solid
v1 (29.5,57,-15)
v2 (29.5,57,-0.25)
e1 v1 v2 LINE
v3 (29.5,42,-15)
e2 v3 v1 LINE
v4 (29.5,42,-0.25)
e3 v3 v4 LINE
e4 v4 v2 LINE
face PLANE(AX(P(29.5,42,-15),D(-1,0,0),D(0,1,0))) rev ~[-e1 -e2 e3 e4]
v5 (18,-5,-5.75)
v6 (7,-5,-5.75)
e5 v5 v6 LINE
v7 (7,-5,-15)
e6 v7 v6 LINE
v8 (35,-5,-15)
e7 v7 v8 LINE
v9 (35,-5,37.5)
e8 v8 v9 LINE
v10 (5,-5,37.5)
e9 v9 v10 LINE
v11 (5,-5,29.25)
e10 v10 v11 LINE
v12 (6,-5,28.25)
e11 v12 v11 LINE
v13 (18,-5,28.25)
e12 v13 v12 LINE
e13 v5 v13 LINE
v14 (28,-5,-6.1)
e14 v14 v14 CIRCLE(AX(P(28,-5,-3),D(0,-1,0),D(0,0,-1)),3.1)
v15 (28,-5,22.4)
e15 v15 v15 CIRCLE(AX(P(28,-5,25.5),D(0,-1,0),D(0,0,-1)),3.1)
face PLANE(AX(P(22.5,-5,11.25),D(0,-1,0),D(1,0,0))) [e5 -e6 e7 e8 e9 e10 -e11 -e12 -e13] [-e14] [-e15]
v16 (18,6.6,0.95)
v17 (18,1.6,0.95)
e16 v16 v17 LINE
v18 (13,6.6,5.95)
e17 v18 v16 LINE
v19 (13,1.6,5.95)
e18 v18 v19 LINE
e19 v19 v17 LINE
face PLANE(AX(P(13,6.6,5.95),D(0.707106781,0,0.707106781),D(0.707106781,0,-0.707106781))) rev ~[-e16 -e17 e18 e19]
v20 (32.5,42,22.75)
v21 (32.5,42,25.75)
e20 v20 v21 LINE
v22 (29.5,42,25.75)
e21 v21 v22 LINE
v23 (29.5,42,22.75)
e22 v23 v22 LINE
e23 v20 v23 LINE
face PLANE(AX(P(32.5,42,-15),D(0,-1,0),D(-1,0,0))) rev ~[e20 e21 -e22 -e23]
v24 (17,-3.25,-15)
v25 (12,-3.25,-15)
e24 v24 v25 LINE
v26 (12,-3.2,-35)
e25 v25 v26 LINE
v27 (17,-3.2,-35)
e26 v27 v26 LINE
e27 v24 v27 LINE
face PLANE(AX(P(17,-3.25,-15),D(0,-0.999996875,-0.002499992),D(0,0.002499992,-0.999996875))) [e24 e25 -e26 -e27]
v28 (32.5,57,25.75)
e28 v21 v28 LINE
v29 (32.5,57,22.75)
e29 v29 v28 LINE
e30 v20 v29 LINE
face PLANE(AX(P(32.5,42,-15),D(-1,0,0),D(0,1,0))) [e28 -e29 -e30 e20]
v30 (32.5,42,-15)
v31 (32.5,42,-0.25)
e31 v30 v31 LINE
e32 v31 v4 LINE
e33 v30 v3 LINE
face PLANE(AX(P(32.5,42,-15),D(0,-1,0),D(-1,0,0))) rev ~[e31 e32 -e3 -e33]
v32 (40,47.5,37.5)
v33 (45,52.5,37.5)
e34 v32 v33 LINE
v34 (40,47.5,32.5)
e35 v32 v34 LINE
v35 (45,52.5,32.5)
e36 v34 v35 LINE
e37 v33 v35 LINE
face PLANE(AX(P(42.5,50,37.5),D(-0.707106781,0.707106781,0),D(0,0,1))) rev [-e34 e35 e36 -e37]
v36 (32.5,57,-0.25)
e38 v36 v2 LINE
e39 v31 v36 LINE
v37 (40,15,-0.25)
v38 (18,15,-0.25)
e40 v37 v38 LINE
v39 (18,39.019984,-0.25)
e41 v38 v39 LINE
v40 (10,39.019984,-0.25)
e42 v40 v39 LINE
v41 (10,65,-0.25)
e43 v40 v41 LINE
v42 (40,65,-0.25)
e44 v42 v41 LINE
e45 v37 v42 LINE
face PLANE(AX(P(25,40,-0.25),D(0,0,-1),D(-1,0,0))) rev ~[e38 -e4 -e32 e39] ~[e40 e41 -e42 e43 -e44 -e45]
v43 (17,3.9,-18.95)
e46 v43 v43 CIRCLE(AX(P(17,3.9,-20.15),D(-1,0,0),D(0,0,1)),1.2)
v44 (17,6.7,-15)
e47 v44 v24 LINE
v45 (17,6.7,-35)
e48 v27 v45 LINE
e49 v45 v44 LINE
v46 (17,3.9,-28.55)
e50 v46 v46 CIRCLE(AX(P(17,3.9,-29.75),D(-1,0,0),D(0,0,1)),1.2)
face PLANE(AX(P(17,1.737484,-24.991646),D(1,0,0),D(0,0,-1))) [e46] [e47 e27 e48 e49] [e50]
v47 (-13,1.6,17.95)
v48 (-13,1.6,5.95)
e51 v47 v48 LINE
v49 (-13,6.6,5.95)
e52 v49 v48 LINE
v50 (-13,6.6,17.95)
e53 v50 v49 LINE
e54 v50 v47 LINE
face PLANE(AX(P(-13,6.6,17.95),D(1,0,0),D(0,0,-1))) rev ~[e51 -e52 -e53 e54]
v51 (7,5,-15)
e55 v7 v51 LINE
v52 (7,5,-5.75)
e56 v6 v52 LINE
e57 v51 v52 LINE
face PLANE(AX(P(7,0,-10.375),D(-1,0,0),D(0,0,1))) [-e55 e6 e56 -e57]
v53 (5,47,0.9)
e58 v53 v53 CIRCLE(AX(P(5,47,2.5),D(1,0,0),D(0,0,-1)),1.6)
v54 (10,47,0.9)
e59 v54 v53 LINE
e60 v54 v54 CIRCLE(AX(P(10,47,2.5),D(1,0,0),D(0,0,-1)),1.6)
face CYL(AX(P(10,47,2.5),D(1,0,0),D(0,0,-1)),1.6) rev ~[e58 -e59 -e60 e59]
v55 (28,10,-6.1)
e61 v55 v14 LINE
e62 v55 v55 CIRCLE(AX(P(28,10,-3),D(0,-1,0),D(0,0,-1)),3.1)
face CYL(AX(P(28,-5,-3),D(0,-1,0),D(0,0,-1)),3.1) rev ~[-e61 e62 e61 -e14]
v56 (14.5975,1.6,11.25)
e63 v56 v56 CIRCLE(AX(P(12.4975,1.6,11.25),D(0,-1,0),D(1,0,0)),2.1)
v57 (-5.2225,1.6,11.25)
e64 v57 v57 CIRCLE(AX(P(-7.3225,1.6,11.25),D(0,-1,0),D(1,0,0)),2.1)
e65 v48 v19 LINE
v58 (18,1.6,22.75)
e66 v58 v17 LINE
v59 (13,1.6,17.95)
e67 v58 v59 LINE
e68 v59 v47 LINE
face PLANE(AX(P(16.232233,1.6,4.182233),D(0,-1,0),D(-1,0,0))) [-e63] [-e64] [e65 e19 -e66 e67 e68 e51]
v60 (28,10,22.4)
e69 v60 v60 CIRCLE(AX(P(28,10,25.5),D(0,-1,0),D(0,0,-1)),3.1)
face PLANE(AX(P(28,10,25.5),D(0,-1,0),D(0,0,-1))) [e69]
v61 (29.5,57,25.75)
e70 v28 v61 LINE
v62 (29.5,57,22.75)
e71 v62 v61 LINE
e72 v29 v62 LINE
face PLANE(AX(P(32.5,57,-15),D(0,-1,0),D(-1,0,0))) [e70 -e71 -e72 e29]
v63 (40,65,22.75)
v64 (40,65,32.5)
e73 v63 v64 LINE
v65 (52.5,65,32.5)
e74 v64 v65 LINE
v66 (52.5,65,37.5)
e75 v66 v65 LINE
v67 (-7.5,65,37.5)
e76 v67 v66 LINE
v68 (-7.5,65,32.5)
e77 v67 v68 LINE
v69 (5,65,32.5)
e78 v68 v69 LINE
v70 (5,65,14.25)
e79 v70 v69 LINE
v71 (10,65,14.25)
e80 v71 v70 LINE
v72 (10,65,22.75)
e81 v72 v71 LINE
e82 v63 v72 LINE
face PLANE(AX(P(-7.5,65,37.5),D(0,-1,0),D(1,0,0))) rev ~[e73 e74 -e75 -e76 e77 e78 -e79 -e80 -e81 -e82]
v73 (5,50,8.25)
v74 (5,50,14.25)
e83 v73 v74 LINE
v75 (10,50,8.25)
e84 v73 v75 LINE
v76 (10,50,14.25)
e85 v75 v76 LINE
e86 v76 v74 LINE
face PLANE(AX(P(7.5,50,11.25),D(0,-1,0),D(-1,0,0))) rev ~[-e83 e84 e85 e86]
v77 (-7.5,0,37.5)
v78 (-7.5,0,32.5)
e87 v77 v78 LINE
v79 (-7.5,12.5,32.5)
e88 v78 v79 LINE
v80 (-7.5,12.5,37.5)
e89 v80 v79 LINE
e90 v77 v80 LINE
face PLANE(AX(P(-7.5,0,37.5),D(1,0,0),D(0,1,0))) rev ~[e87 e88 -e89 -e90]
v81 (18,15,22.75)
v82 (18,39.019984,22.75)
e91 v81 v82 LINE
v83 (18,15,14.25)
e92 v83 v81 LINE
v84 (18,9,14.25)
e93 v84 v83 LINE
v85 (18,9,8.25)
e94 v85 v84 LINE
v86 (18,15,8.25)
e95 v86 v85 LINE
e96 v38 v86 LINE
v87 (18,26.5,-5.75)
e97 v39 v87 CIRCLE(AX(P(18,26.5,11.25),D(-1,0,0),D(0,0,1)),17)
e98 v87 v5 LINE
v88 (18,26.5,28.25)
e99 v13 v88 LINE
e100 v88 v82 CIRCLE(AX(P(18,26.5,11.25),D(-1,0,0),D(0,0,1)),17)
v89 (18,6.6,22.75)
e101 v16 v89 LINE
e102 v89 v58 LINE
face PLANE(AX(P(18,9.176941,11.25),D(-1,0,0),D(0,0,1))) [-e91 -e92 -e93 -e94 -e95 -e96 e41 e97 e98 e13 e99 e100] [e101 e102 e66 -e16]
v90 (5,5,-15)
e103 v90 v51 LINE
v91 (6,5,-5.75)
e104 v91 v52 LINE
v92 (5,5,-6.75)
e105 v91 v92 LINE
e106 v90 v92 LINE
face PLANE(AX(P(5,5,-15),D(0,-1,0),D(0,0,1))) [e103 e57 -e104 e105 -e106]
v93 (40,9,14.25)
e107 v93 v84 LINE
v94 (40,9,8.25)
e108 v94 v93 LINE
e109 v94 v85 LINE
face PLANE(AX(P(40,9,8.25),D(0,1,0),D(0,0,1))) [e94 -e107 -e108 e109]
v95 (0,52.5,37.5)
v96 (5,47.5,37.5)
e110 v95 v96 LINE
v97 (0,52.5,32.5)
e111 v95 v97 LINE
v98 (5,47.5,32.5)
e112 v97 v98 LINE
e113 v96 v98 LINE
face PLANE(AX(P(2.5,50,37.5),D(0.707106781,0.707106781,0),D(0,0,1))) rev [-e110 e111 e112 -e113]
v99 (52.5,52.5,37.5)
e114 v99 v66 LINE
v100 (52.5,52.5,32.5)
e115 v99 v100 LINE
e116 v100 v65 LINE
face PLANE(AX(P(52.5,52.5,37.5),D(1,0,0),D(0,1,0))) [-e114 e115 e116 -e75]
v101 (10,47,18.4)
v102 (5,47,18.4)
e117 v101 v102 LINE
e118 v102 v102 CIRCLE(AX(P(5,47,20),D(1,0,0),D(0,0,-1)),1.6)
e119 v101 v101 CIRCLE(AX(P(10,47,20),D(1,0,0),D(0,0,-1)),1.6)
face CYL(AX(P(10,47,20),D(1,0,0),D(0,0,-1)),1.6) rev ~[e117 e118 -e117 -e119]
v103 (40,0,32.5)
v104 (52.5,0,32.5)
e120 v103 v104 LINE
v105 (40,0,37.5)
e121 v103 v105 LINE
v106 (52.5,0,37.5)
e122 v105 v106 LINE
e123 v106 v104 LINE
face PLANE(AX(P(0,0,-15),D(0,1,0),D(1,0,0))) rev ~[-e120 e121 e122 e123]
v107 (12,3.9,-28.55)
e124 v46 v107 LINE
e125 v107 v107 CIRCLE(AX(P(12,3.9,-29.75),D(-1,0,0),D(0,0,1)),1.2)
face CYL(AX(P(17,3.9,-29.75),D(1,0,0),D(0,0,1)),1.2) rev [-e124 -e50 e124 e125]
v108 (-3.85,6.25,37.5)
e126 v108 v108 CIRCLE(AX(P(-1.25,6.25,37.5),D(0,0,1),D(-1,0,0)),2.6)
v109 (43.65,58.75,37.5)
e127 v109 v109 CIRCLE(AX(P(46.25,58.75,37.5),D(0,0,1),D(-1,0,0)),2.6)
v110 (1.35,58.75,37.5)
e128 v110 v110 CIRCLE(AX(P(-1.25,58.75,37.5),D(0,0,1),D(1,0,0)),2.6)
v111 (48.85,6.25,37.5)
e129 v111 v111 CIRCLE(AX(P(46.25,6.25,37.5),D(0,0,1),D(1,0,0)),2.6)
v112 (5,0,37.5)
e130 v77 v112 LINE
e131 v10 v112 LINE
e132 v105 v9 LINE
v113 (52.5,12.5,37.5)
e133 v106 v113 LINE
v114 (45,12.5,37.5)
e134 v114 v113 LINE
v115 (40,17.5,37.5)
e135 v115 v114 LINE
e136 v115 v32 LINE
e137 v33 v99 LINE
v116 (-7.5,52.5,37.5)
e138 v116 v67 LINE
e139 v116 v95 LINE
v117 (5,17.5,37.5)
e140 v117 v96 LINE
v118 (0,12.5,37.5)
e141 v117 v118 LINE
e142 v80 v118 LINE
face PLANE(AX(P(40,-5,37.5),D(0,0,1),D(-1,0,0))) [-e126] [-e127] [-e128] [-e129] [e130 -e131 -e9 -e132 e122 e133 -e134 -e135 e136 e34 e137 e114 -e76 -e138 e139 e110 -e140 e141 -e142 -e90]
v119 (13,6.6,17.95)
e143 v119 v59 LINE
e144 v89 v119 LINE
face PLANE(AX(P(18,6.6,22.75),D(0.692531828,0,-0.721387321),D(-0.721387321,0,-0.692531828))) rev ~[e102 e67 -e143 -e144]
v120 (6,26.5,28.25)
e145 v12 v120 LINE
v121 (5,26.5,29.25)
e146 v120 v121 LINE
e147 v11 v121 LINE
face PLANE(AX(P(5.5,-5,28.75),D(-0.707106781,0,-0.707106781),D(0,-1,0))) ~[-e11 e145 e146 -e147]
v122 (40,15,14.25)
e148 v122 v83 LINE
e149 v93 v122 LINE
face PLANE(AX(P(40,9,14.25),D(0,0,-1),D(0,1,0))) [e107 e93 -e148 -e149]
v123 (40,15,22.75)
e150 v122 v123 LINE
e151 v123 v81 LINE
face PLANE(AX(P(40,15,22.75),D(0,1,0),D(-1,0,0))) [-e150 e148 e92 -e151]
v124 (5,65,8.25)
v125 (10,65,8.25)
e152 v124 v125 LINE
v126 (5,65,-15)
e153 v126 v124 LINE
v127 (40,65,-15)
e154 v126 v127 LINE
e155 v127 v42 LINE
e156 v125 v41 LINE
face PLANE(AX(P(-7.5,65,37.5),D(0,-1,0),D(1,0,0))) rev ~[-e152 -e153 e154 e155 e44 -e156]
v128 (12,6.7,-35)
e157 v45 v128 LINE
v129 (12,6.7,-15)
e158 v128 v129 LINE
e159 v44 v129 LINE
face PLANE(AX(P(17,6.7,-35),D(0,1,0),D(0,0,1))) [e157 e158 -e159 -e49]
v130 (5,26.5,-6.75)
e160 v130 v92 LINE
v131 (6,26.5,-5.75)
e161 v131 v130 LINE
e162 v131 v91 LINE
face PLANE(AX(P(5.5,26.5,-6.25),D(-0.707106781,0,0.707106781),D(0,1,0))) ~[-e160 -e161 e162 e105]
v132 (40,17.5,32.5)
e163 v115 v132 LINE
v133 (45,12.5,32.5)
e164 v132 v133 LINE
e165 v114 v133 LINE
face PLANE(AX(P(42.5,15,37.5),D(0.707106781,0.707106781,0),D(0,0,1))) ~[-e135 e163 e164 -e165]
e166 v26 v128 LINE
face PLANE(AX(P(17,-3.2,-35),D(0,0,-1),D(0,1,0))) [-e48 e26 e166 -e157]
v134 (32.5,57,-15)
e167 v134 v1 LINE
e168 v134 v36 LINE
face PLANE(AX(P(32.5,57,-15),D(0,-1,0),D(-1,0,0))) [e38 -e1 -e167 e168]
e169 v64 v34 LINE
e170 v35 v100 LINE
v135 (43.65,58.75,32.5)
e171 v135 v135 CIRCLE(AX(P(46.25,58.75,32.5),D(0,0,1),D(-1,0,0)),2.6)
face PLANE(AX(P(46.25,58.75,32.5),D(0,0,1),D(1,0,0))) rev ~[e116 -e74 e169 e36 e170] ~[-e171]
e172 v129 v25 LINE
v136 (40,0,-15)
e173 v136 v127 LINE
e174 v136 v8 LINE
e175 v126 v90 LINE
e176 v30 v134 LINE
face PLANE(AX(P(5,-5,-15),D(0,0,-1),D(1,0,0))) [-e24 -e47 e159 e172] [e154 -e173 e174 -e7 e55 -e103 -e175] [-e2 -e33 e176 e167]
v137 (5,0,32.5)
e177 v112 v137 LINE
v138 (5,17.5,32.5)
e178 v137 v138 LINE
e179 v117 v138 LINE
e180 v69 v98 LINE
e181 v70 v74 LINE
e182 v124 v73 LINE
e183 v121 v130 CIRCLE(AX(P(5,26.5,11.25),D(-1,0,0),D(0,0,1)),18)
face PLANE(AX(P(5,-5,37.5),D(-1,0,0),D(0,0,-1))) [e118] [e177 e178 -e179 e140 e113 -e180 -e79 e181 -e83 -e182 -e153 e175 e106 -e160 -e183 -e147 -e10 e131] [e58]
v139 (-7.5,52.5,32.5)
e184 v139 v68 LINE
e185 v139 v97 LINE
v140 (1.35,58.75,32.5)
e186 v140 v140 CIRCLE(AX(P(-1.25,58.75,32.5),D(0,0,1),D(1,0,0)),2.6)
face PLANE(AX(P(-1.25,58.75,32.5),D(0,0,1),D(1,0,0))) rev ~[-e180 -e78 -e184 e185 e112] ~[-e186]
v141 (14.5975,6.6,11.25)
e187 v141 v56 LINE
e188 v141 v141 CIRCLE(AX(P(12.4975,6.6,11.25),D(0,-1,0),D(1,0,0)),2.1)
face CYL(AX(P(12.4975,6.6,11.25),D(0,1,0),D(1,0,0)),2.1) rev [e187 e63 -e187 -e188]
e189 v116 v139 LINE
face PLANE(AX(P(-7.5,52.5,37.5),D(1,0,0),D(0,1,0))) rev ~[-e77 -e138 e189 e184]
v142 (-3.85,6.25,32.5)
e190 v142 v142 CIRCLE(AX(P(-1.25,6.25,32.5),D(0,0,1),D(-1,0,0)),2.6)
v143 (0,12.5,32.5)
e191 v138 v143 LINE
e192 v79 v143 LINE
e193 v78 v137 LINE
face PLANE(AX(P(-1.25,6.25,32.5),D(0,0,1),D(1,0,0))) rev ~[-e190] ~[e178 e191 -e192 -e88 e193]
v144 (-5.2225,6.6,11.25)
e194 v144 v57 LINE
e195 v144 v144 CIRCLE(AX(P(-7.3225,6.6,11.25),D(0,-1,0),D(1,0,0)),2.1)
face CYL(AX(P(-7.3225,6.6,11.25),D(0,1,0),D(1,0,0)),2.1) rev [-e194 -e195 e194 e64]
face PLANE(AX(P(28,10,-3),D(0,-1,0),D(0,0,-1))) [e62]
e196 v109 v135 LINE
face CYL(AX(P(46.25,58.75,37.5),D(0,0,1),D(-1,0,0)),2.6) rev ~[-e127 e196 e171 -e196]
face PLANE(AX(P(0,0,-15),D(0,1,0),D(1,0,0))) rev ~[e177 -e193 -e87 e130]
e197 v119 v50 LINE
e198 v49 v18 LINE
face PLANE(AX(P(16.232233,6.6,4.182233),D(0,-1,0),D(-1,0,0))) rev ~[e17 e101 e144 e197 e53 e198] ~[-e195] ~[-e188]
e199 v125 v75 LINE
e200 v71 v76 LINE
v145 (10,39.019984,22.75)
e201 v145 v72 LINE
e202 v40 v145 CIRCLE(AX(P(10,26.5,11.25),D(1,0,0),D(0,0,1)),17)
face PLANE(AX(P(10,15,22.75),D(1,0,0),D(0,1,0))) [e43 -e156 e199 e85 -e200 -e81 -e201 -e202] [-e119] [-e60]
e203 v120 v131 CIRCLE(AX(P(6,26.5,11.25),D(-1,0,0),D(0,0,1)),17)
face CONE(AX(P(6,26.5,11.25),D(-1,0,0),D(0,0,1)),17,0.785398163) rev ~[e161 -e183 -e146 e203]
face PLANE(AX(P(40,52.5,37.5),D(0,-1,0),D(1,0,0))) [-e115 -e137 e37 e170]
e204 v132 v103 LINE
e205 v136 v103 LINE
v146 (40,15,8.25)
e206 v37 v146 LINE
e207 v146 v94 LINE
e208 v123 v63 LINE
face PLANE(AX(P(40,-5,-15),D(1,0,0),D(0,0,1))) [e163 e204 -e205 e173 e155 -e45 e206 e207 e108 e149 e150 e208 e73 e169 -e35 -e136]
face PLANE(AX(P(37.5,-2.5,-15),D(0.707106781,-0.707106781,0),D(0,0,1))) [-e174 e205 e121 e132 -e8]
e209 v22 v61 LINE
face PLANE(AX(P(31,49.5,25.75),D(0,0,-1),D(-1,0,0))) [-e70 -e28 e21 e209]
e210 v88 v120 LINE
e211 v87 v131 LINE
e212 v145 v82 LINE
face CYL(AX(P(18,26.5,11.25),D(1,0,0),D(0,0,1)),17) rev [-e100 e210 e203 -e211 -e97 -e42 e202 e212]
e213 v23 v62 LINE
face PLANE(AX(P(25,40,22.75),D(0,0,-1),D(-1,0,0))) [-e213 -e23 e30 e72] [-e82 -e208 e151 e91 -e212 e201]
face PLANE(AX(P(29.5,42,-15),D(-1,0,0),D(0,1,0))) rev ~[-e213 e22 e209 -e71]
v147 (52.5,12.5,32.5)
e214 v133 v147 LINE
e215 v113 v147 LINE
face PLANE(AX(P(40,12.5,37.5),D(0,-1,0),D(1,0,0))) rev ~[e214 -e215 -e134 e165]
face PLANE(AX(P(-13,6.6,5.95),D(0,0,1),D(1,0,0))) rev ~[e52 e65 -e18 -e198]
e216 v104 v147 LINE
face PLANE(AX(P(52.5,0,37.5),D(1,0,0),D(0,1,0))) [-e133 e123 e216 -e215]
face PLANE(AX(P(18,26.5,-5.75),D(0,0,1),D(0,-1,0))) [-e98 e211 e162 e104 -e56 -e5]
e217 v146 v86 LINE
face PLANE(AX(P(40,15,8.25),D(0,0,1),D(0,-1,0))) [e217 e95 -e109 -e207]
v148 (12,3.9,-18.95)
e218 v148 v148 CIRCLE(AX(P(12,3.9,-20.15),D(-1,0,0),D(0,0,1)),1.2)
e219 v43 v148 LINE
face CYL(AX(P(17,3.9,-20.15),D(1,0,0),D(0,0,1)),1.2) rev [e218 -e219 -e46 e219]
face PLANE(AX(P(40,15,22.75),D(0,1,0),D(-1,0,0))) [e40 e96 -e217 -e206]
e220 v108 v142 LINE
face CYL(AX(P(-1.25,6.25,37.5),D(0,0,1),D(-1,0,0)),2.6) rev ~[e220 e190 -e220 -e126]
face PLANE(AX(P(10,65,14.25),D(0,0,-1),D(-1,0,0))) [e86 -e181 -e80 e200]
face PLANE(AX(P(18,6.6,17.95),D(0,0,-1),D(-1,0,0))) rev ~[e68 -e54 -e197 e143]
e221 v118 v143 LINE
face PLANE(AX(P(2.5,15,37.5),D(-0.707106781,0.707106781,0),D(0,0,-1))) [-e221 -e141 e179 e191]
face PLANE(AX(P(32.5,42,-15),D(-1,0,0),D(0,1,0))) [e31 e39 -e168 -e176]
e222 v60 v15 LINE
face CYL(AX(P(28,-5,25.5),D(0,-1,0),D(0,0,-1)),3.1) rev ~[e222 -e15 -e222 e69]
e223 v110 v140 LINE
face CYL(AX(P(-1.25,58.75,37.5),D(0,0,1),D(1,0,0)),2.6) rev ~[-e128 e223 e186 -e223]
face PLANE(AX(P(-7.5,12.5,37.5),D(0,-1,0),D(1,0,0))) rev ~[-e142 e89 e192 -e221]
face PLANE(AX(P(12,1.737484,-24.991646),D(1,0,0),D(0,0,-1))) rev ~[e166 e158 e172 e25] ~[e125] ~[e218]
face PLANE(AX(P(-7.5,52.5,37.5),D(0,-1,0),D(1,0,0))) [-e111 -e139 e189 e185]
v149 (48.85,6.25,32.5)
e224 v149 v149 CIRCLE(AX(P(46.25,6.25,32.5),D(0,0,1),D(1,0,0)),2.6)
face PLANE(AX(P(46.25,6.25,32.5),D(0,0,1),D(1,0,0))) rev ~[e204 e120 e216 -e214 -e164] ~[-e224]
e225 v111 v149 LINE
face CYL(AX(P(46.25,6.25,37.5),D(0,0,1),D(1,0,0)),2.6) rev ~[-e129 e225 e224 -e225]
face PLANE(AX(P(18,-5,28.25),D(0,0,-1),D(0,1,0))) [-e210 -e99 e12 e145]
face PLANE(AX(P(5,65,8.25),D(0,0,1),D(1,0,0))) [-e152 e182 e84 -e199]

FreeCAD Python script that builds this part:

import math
import FreeCAD as App
import Part
import Sketcher
from FreeCAD import Vector
Q = App.Units.Quantity


def edges_at(feature, points):
    """Names of the edges that pass closest to the given points."""
    edges = feature.Shape.Edges
    near = lambda p: min(range(len(edges)), key=lambda i: edges[i].distToShape(Part.Vertex(*p))[0])
    return sorted({f"Edge{near(p) + 1}" for p in points})


def add_polygon(sketch, points):
    """Adds a closed chain of lines whose ends are joined by coincident constraints."""
    first, n = sketch.GeometryCount, len(points)
    for a, b in zip(points, points[1:] + points[:1]):
        sketch.addGeometry(Part.LineSegment(App.Vector(*a, 0), App.Vector(*b, 0)), False)
    for i in range(n):
        sketch.addConstraint(Sketcher.Constraint("Coincident", first + i, 2, first + (i + 1) % n, 1))

doc = App.newDocument("Part")
body = doc.addObject("PartDesign::Body", "Body")

# Sketch on XY plane
sketch1 = doc.addObject("Sketcher::SketchObject", "Sketch")
body.addObject(sketch1)
sketch1.AttachmentSupport = (doc.XY_Plane, [""])
sketch1.MapMode = "FlatFace"
add_polygon(sketch1, [(0, 65), (0, 0), (40, 0), (40, 65)])  # lines 0-3
sketch1.addConstraint([
    Sketcher.Constraint("Vertical", 0),
    Sketcher.Constraint("Horizontal", 1),
    Sketcher.Constraint("Vertical", 2),
    Sketcher.Constraint("Horizontal", 3),
    Sketcher.Constraint("Coincident", 0, 2, -1, 1),
    Sketcher.Constraint("DistanceX", 1, 1, 1, 2, Q("40 mm")),
    Sketcher.Constraint("DistanceY", 0, 2, 0, 1, Q("65 mm")),
])
pad1 = doc.addObject("PartDesign::Pad", "Pad")
body.addObject(pad1)
pad1.Profile = sketch1
pad1.Type = "TwoLengths"
pad1.Length = 42.5
pad1.Length2 = 15

# Sketch on YZ plane
sketch2 = doc.addObject("Sketcher::SketchObject", "Sketch001")
body.addObject(sketch2)
sketch2.AttachmentSupport = (doc.YZ_Plane, [""])
sketch2.MapMode = "FlatFace"
sketch2.AttachmentOffset = App.Placement(Vector(0, 0, 40), App.Rotation())
add_polygon(sketch2, [(65, 22), (15, 22), (15, 0), (65, 0)])  # lines 0-3
sketch2.addConstraint([
    Sketcher.Constraint("Horizontal", 0),
    Sketcher.Constraint("Vertical", 1),
    Sketcher.Constraint("Horizontal", 2),
    Sketcher.Constraint("Vertical", 3),
    Sketcher.Constraint("PointOnObject", 1, 2, -1),
    Sketcher.Constraint("DistanceX", 0, 2, 0, 1, Q("50 mm")),
    Sketcher.Constraint("DistanceY", 1, 2, 1, 1, Q("22.5 mm")),
    Sketcher.Constraint("DistanceX", -1, 1, 0, 2, Q("15 mm")),
])
pocket1 = doc.addObject("PartDesign::Pocket", "Pocket")
body.addObject(pocket1)
pocket1.Profile = sketch2
pocket1.Length = 30

# Sketch on YZ plane
sketch3 = doc.addObject("Sketcher::SketchObject", "Sketch002")
body.addObject(sketch3)
sketch3.AttachmentSupport = (doc.YZ_Plane, [""])
sketch3.MapMode = "FlatFace"
sketch3.AttachmentOffset = App.Placement(Vector(0, 0, 10), App.Rotation())
sketch3.addGeometry(Part.Circle(Vector(26.5, 11.2, 0), Vector(0, 0, 1), 4.5), False)
sketch3.addConstraint([
    Sketcher.Constraint("Diameter", 0, Q("9 mm")),
    Sketcher.Constraint("DistanceX", -1, 1, 0, 3, Q("26.5 mm")),
    Sketcher.Constraint("DistanceY", -1, 1, 0, 3, Q("11.25 mm")),
])
pocket2 = doc.addObject("PartDesign::Pocket", "Pocket001")
body.addObject(pocket2)
pocket2.Profile = sketch3
pocket2.Length = 10

# Sketch on XY plane
sketch4 = doc.addObject("Sketcher::SketchObject", "Sketch003")
body.addObject(sketch4)
sketch4.AttachmentSupport = (doc.XY_Plane, [""])
sketch4.MapMode = "FlatFace"
sketch4.AttachmentOffset = App.Placement(Vector(0, 0, 42.5), App.Rotation())
add_polygon(sketch4, [(0, 65), (0, 0), (40, 0), (40, 65)])  # lines 0-3
sketch4.addConstraint([
    Sketcher.Constraint("Vertical", 0),
    Sketcher.Constraint("Horizontal", 1),
    Sketcher.Constraint("Vertical", 2),
    Sketcher.Constraint("Horizontal", 3),
    Sketcher.Constraint("Coincident", 0, 2, -1, 1),
    Sketcher.Constraint("DistanceX", 1, 1, 1, 2, Q("40 mm")),
    Sketcher.Constraint("DistanceY", 0, 2, 0, 1, Q("65 mm")),
])
pocket3 = doc.addObject("PartDesign::Pocket", "Pocket002")
body.addObject(pocket3)
pocket3.Profile = sketch4
pocket3.Length = 5

# Sketch on XZ plane
sketch5 = doc.addObject("Sketcher::SketchObject", "Sketch004")
body.addObject(sketch5)
sketch5.AttachmentSupport = (doc.XZ_Plane, [""])
sketch5.MapMode = "FlatFace"
sketch5.addGeometry([
    Part.Circle(Vector(28, 25.5, 0), Vector(0, 0, 1), 3.1),
    Part.Circle(Vector(28, -3, 0), Vector(0, 0, 1), 3.1),
], False)
sketch5.addConstraint([
    Sketcher.Constraint("Equal", 0, 1),
    Sketcher.Constraint("Vertical", 0, 3, 1, 3),
    Sketcher.Constraint("Diameter", 0, Q("6.2 mm")),
    Sketcher.Constraint("DistanceX", -1, 1, 0, 3, Q("28 mm")),
    Sketcher.Constraint("DistanceY", 1, 3, -1, 1, Q("3 mm")),
    Sketcher.Constraint("DistanceY", -1, 1, 0, 3, Q("25.5 mm")),
])
pocket4 = doc.addObject("PartDesign::Pocket", "Pocket003")
body.addObject(pocket4)
pocket4.Profile = sketch5
pocket4.Length = 10

# Sketch on YZ plane
sketch6 = doc.addObject("Sketcher::SketchObject", "Sketch005")
body.addObject(sketch6)
sketch6.AttachmentSupport = (doc.YZ_Plane, [""])
sketch6.MapMode = "FlatFace"
add_polygon(sketch6, [(65, -15), (0, -15), (0, 38), (65, 38)])  # lines 0-3
sketch6.addConstraint([
    Sketcher.Constraint("Horizontal", 0),
    Sketcher.Constraint("Vertical", 1),
    Sketcher.Constraint("Horizontal", 2),
    Sketcher.Constraint("Vertical", 3),
    Sketcher.Constraint("PointOnObject", 0, 2, -2),
    Sketcher.Constraint("DistanceX", 0, 2, 0, 1, Q("65 mm")),
    Sketcher.Constraint("DistanceY", 1, 1, 1, 2, Q("52.5 mm")),
    Sketcher.Constraint("DistanceY", 0, 2, -1, 1, Q("15 mm")),
])
pocket5 = doc.addObject("PartDesign::Pocket", "Pocket004")
body.addObject(pocket5)
pocket5.Profile = sketch6
pocket5.Length = 5
pocket5.Reversed = True

# Sketch on XY plane
sketch7 = doc.addObject("Sketcher::SketchObject", "Sketch006")
body.addObject(sketch7)
sketch7.AttachmentSupport = (doc.XY_Plane, [""])
sketch7.MapMode = "FlatFace"
sketch7.AttachmentOffset = App.Placement(Vector(0, 0, 37.5), App.Rotation())
add_polygon(sketch7, [(-7.5, 65), (-7.5, 52.5), (5, 52.5), (5, 65)])  # lines 0-3
sketch7.addGeometry(Part.Circle(Vector(-1.2, 58.8, 0), Vector(0, 0, 1), 2.6), False)  # 4
add_polygon(sketch7, [(40, 65), (40, 52.5), (52.5, 52.5), (52.5, 65)])  # lines 5-8
sketch7.addGeometry(Part.Circle(Vector(46.2, 58.8, 0), Vector(0, 0, 1), 2.6), False)  # 9
add_polygon(sketch7, [(40, 12.5), (40, 0), (52.5, 0), (52.5, 12.5)])  # lines 10-13
sketch7.addGeometry(Part.Circle(Vector(46.2, 6.2, 0), Vector(0, 0, 1), 2.6), False)  # 14
add_polygon(sketch7, [(-7.5, 12.5), (-7.5, 0), (5, 0), (5, 12.5)])  # lines 15-18
sketch7.addGeometry(Part.Circle(Vector(-1.2, 6.2, 0), Vector(0, 0, 1), 2.6), False)  # 19
sketch7.addConstraint([
    Sketcher.Constraint("Vertical", 0),
    Sketcher.Constraint("Horizontal", 1),
    Sketcher.Constraint("Vertical", 2),
    Sketcher.Constraint("Horizontal", 3),
    Sketcher.Constraint("Vertical", 5),
    Sketcher.Constraint("Horizontal", 6),
    Sketcher.Constraint("Vertical", 7),
    Sketcher.Constraint("Horizontal", 8),
    Sketcher.Constraint("Vertical", 10),
    Sketcher.Constraint("Horizontal", 11),
    Sketcher.Constraint("Vertical", 12),
    Sketcher.Constraint("Horizontal", 13),
    Sketcher.Constraint("Vertical", 15),
    Sketcher.Constraint("Horizontal", 16),
    Sketcher.Constraint("Vertical", 17),
    Sketcher.Constraint("Horizontal", 18),
    Sketcher.Constraint("Equal", 4, 9),
    Sketcher.Constraint("Equal", 9, 14),
    Sketcher.Constraint("Equal", 14, 19),
    Sketcher.Constraint("PointOnObject", 10, 2, -1),
    Sketcher.Constraint("PointOnObject", 15, 2, -1),
    Sketcher.Constraint("Horizontal", 4, 3, 9, 3),
    Sketcher.Constraint("Horizontal", 14, 3, 19, 3),
    Sketcher.Constraint("Horizontal", 1, 2, 5, 2),
    Sketcher.Constraint("Horizontal", 3, 2, 7, 2),
    Sketcher.Constraint("Horizontal", 13, 2, 17, 2),
    Sketcher.Constraint("Vertical", 9, 3, 14, 3),
    Sketcher.Constraint("Vertical", 4, 3, 19, 3),
    Sketcher.Constraint("Vertical", 8, 2, 10, 2),
    Sketcher.Constraint("Vertical", 7, 2, 11, 2),
    Sketcher.Constraint("Vertical", 3, 2, 15, 2),
    Sketcher.Constraint("Vertical", 2, 2, 16, 2),
    Sketcher.Constraint("Equal", 3, 6),
    Sketcher.Constraint("Equal", 18, 0),
    Sketcher.Constraint("Equal", 7, 10),
    Sketcher.Constraint("Diameter", 4, Q("5.2 mm")),
    Sketcher.Constraint("DistanceX", 1, 1, 1, 2, Q("12.5 mm")),
    Sketcher.Constraint("DistanceX", -1, 1, 1, 2, Q("5 mm")),
    Sketcher.Constraint("DistanceY", -1, 1, 2, 2, Q("65 mm")),
    Sketcher.Constraint("DistanceX", -1, 1, 5, 2, Q("40 mm")),
    Sketcher.Constraint("DistanceX", 4, 3, 9, 3, Q("47.5 mm")),
    Sketcher.Constraint("DistanceY", 14, 3, 9, 3, Q("52.5 mm")),
    Sketcher.Constraint("DistanceX", 4, 3, -1, 1, Q("1.25 mm")),
    Sketcher.Constraint("DistanceY", -1, 1, 4, 3, Q("58.75 mm")),
])
pad2 = doc.addObject("PartDesign::Pad", "Pad001")
body.addObject(pad2)
pad2.Profile = sketch7
pad2.Length = 5
pad2.Reversed = True

# Sketch on XZ plane
sketch8 = doc.addObject("Sketcher::SketchObject", "Sketch007")
body.addObject(sketch8)
sketch8.AttachmentSupport = (doc.XZ_Plane, [""])
sketch8.MapMode = "FlatFace"
sketch8.AttachmentOffset = App.Placement(Vector(0, 0, 5), App.Rotation())
add_polygon(sketch8, [(40, 37.5), (5, 37.5), (5, -15), (40, -15)])  # lines 0-3
sketch8.addGeometry(Part.Circle(Vector(28, -3, 0), Vector(0, 0, 1), 3.1), False)  # 4
sketch8.addGeometry(Part.Circle(Vector(28, 25.5, 0), Vector(0, 0, 1), 3.1), False)  # 5
sketch8.addConstraint([
    Sketcher.Constraint("Horizontal", 0),
    Sketcher.Constraint("Vertical", 1),
    Sketcher.Constraint("Horizontal", 2),
    Sketcher.Constraint("Vertical", 3),
    Sketcher.Constraint("Equal", 4, 5),
    Sketcher.Constraint("Vertical", 4, 3, 5, 3),
    Sketcher.Constraint("Diameter", 4, Q("6.2 mm")),
    Sketcher.Constraint("DistanceX", 0, 2, 0, 1, Q("35 mm")),
    Sketcher.Constraint("DistanceY", 1, 2, 1, 1, Q("52.5 mm")),
    Sketcher.Constraint("DistanceX", -1, 1, 4, 3, Q("28 mm")),
    Sketcher.Constraint("DistanceY", 4, 3, -1, 1, Q("3 mm")),
    Sketcher.Constraint("DistanceX", -1, 1, 0, 2, Q("5 mm")),
    Sketcher.Constraint("DistanceY", 1, 2, -1, 1, Q("15 mm")),
    Sketcher.Constraint("DistanceY", 5, 3, 0, 2, Q("12 mm")),
])
pad3 = doc.addObject("PartDesign::Pad", "Pad002")
body.addObject(pad3)
pad3.Profile = sketch8
pad3.Length = 5
pad3.Reversed = True

# Sketch on YZ plane
sketch9 = doc.addObject("Sketcher::SketchObject", "Sketch008")
body.addObject(sketch9)
sketch9.AttachmentSupport = (doc.YZ_Plane, [""])
sketch9.MapMode = "FlatFace"
sketch9.AttachmentOffset = App.Placement(Vector(0, 0, 10), App.Rotation())
sketch9.addGeometry([
    Part.Circle(Vector(47, 2.5, 0), Vector(0, 0, 1), 1.6),
    Part.Circle(Vector(47, 20, 0), Vector(0, 0, 1), 1.6),
], False)
sketch9.addConstraint([
    Sketcher.Constraint("Equal", 0, 1),
    Sketcher.Constraint("Vertical", 0, 3, 1, 3),
    Sketcher.Constraint("Diameter", 0, Q("3.2 mm")),
    Sketcher.Constraint("DistanceX", -1, 1, 0, 3, Q("47 mm")),
    Sketcher.Constraint("DistanceY", -1, 1, 1, 3, Q("20 mm")),
    Sketcher.Constraint("DistanceY", -1, 1, 0, 3, Q("2.5 mm")),
])
pocket6 = doc.addObject("PartDesign::Pocket", "Pocket005")
body.addObject(pocket6)
pocket6.Profile = sketch9
pocket6.Type = "ThroughAll"

# Sketch on XY plane
sketch10 = doc.addObject("Sketcher::SketchObject", "Sketch009")
body.addObject(sketch10)
sketch10.AttachmentSupport = (doc.XY_Plane, [""])
sketch10.MapMode = "FlatFace"
sketch10.AttachmentOffset = App.Placement(Vector(0, 0, 11.25), App.Rotation())
add_polygon(sketch10, [(40, 65), (40, 15), (10, 15), (10, 65)])  # lines 0-3
sketch10.addConstraint([
    Sketcher.Constraint("Vertical", 0),
    Sketcher.Constraint("Horizontal", 1),
    Sketcher.Constraint("Vertical", 2),
    Sketcher.Constraint("Horizontal", 3),
    Sketcher.Constraint("DistanceX", 1, 2, 1, 1, Q("30 mm")),
    Sketcher.Constraint("DistanceY", 0, 2, 0, 1, Q("50 mm")),
    Sketcher.Constraint("DistanceX", -1, 1, 0, 2, Q("40 mm")),
    Sketcher.Constraint("DistanceY", -1, 1, 0, 2, Q("15 mm")),
])
pocket7 = doc.addObject("PartDesign::Pocket", "Pocket006")
body.addObject(pocket7)
pocket7.Profile = sketch10
pocket7.Type = "TwoLengths"
pocket7.Length = 11.5
pocket7.Length2 = 11.5

# Sketch on YZ plane
sketch11 = doc.addObject("Sketcher::SketchObject", "Sketch010")
body.addObject(sketch11)
sketch11.AttachmentSupport = (doc.YZ_Plane, [""])
sketch11.MapMode = "FlatFace"
sketch11.AttachmentOffset = App.Placement(Vector(0, 0, 40), App.Rotation())
add_polygon(sketch11, [(15, 8), (15, 14), (9, 14), (9, 8)])  # lines 0-3
sketch11.addConstraint([
    Sketcher.Constraint("Vertical", 0),
    Sketcher.Constraint("Horizontal", 1),
    Sketcher.Constraint("Vertical", 2),
    Sketcher.Constraint("Horizontal", 3),
    Sketcher.Constraint("Equal", 3, 0),
    Sketcher.Constraint("DistanceX", 1, 2, 1, 1, Q("6 mm")),
    Sketcher.Constraint("DistanceX", -1, 1, 0, 2, Q("15 mm")),
    Sketcher.Constraint("DistanceY", -1, 1, 0, 2, Q("14.25 mm")),
])
pocket8 = doc.addObject("PartDesign::Pocket", "Pocket007")
body.addObject(pocket8)
pocket8.Profile = sketch11
pocket8.Length = 30

# Sketch on XZ plane
sketch12 = doc.addObject("Sketcher::SketchObject", "Sketch011")
body.addObject(sketch12)
sketch12.AttachmentSupport = (doc.XZ_Plane, [""])
sketch12.MapMode = "FlatFace"
sketch12.AttachmentOffset = App.Placement(Vector(0, 0, -65), App.Rotation())
add_polygon(sketch12, [(5, 8), (5, 14), (10, 14), (10, 8)])  # lines 0-3
sketch12.addConstraint([
    Sketcher.Constraint("Vertical", 0),
    Sketcher.Constraint("Horizontal", 1),
    Sketcher.Constraint("Vertical", 2),
    Sketcher.Constraint("Horizontal", 3),
    Sketcher.Constraint("DistanceX", 1, 1, 1, 2, Q("5 mm")),
    Sketcher.Constraint("DistanceY", 0, 1, 0, 2, Q("6 mm")),
    Sketcher.Constraint("DistanceX", -1, 1, 0, 2, Q("5 mm")),
    Sketcher.Constraint("DistanceY", -1, 1, 0, 2, Q("14.25 mm")),
])
pocket9 = doc.addObject("PartDesign::Pocket", "Pocket008")
body.addObject(pocket9)
pocket9.Profile = sketch12
pocket9.Length = 15
pocket9.Reversed = True

# Sketch on YZ plane
sketch13 = doc.addObject("Sketcher::SketchObject", "Sketch012")
body.addObject(sketch13)
sketch13.AttachmentSupport = (doc.YZ_Plane, [""])
sketch13.MapMode = "FlatFace"
sketch13.AttachmentOffset = App.Placement(Vector(0, 0, 18), App.Rotation())
sketch13.addGeometry([
    Part.ArcOfCircle(Part.Circle(Vector(26.5, 11.2, 0), Vector(0, 0, 1), 17), math.radians(-90), math.radians(90)),  # 0
    Part.LineSegment(Vector(26.5, -5.8, 0), Vector(-5, -5.8, 0)),  # 1
    Part.LineSegment(Vector(-5, -5.8, 0), Vector(-5, 28.2, 0)),  # 2
    Part.LineSegment(Vector(-5, 28.2, 0), Vector(26.5, 28.2, 0)),  # 3
    Part.Circle(Vector(26.5, 11.2, 0), Vector(0, 0, 1), 4.5),  # 4
], False)
sketch13.addConstraint([
    Sketcher.Constraint("Tangent", 0, 1, 1, 1),
    Sketcher.Constraint("Coincident", 1, 2, 2, 1),
    Sketcher.Constraint("Coincident", 2, 2, 3, 1),
    Sketcher.Constraint("Tangent", 3, 2, 0, 2),
    Sketcher.Constraint("Horizontal", 1),
    Sketcher.Constraint("Vertical", 2),
    Sketcher.Constraint("Horizontal", 3),
    Sketcher.Constraint("Coincident", 4, 3, 0, 3),
    Sketcher.Constraint("Diameter", 4, Q("9 mm")),
    Sketcher.Constraint("Radius", 0, Q("17 mm")),
    Sketcher.Constraint("DistanceX", 1, 2, 1, 1, Q("31.5 mm")),
    Sketcher.Constraint("DistanceX", 1, 2, -1, 1, Q("5 mm")),
    Sketcher.Constraint("DistanceY", -1, 1, 0, 3, Q("11.25 mm")),
])
pocket10 = doc.addObject("PartDesign::Pocket", "Pocket009")
body.addObject(pocket10)
pocket10.Profile = sketch13
pocket10.Length = 13
doc.recompute()

chamfer = doc.addObject("PartDesign::Chamfer", "Chamfer")
body.addObject(chamfer)
chamfer.Base = (pocket10, edges_at(pocket10, [(5, 10.75, -5.75), (5, 43.5, 11.25), (5, 10.75, 28.25)]))
chamfer.Size = 1

# Sketch on YZ plane
sketch14 = doc.addObject("Sketcher::SketchObject", "Sketch013")
body.addObject(sketch14)
sketch14.AttachmentSupport = (doc.YZ_Plane, [""])
sketch14.MapMode = "FlatFace"
sketch14.AttachmentOffset = App.Placement(Vector(0, 0, 5), App.Rotation())
add_polygon(sketch14, [(5, -15), (-5, -15), (-5, -6), (5, -6)])  # lines 0-3
sketch14.addConstraint([
    Sketcher.Constraint("Horizontal", 0),
    Sketcher.Constraint("Vertical", 1),
    Sketcher.Constraint("Horizontal", 2),
    Sketcher.Constraint("Vertical", 3),
    Sketcher.Constraint("DistanceX", 0, 2, 0, 1, Q("10 mm")),
    Sketcher.Constraint("DistanceX", 0, 2, -1, 1, Q("5 mm")),
    Sketcher.Constraint("DistanceY", 0, 2, -1, 1, Q("15 mm")),
    Sketcher.Constraint("DistanceY", 1, 1, 1, 2, Q("9.25 mm")),
])
pocket11 = doc.addObject("PartDesign::Pocket", "Pocket010")
body.addObject(pocket11)
pocket11.Profile = sketch14
pocket11.Length = 2
pocket11.Reversed = True

# Sketch on XZ plane
sketch15 = doc.addObject("Sketcher::SketchObject", "Sketch014")
body.addObject(sketch15)
sketch15.AttachmentSupport = (doc.XZ_Plane, [""])
sketch15.MapMode = "FlatFace"
sketch15.AttachmentOffset = App.Placement(Vector(0, 0, -6.6), App.Rotation())
add_polygon(sketch15, [(18, 0.9), (18, 22.8), (13, 17.9), (-13, 17.9), (-13, 6), (13, 6)])  # lines 0-5
sketch15.addGeometry(Part.Circle(Vector(-7.3, 11.2, 0), Vector(0, 0, 1), 2.1), False)  # 6
sketch15.addGeometry(Part.Circle(Vector(12.5, 11.2, 0), Vector(0, 0, 1), 2.1), False)  # 7
sketch15.addConstraint([
    Sketcher.Constraint("Vertical", 0),
    Sketcher.Constraint("Horizontal", 2),
    Sketcher.Constraint("Vertical", 3),
    Sketcher.Constraint("Horizontal", 4),
    Sketcher.Constraint("Equal", 6, 7),
    Sketcher.Constraint("Horizontal", 6, 3, 7, 3),
    Sketcher.Constraint("Vertical", 1, 2, 4, 2),
    Sketcher.Constraint("Diameter", 6, Q("4.2 mm")),
    Sketcher.Constraint("DistanceX", 2, 2, 2, 1, Q("26 mm")),
    Sketcher.Constraint("DistanceY", 3, 2, 3, 1, Q("12 mm")),
    Sketcher.Constraint("Angle", 5, Q("-45 deg")),
    Sketcher.Constraint("DistanceY", 0, 1, 0, 2, Q("21.8 mm")),
    Sketcher.Constraint("DistanceX", -1, 1, 0, 2, Q("18 mm")),
    Sketcher.Constraint("DistanceX", -1, 1, 1, 2, Q("13 mm")),
    Sketcher.Constraint("DistanceY", 7, 3, 0, 2, Q("11.5 mm")),
    Sketcher.Constraint("DistanceY", -1, 1, 6, 3, Q("11.25 mm")),
    Sketcher.Constraint("DistanceX", 6, 3, 7, 3, Q("19.82 mm")),
    Sketcher.Constraint("DistanceX", 6, 3, -1, 1, Q("7.3225 mm")),
])
pad4 = doc.addObject("PartDesign::Pad", "Pad003")
body.addObject(pad4)
pad4.Profile = sketch15
pad4.Length = 5
doc.recompute()

chamfer2 = doc.addObject("PartDesign::Chamfer", "Chamfer001")
body.addObject(chamfer2)
chamfer2.Base = (pad4, edges_at(pad4, [(40, -5, 11.25)]))
chamfer2.Size = 5
doc.recompute()

chamfer3 = doc.addObject("PartDesign::Chamfer", "Chamfer002")
body.addObject(chamfer3)
chamfer3.Base = (chamfer2, edges_at(chamfer2, [(40, 52.5, 35), (40, 12.5, 35)]))
chamfer3.Size = 5
doc.recompute()

chamfer4 = doc.addObject("PartDesign::Chamfer", "Chamfer003")
body.addObject(chamfer4)
chamfer4.Base = (chamfer3, edges_at(chamfer3, [(5, 12.5, 35), (5, 52.5, 35)]))
chamfer4.Size = 5

# Sketch on XY plane
sketch16 = doc.addObject("Sketcher::SketchObject", "Sketch015")
body.addObject(sketch16)
sketch16.AttachmentSupport = (doc.XY_Plane, [""])
sketch16.MapMode = "FlatFace"
sketch16.AttachmentOffset = App.Placement(Vector(0, 0, -15), App.Rotation())
add_polygon(sketch16, [(32.5, 57), (32.5, 42), (29.5, 42), (29.5, 57)])  # lines 0-3
sketch16.addConstraint([
    Sketcher.Constraint("Vertical", 0),
    Sketcher.Constraint("Horizontal", 1),
    Sketcher.Constraint("Vertical", 2),
    Sketcher.Constraint("Horizontal", 3),
    Sketcher.Constraint("DistanceX", 1, 2, 1, 1, Q("3 mm")),
    Sketcher.Constraint("DistanceY", 0, 2, 0, 1, Q("15 mm")),
    Sketcher.Constraint("DistanceY", -1, 1, 0, 2, Q("42 mm")),
    Sketcher.Constraint("DistanceX", -1, 1, 0, 2, Q("32.5 mm")),
])
pocket12 = doc.addObject("PartDesign::Pocket", "Pocket011")
body.addObject(pocket12)
pocket12.Profile = sketch16
pocket12.Length = 40.75
pocket12.Reversed = True

# Sketch on YZ plane
sketch17 = doc.addObject("Sketcher::SketchObject", "Sketch016")
body.addObject(sketch17)
sketch17.AttachmentSupport = (doc.YZ_Plane, [""])
sketch17.MapMode = "FlatFace"
sketch17.AttachmentOffset = App.Placement(Vector(0, 0, 17), App.Rotation())
add_polygon(sketch17, [(-3.2, -35), (-3.2, -15), (6.7, -15), (6.7, -35)])  # lines 0-3
sketch17.addGeometry(Part.Circle(Vector(3.9, -20.1, 0), Vector(0, 0, 1), 1.2), False)  # 4
sketch17.addGeometry(Part.Circle(Vector(3.9, -29.8, 0), Vector(0, 0, 1), 1.2), False)  # 5
sketch17.addConstraint([
    Sketcher.Constraint("Horizontal", 1),
    Sketcher.Constraint("Vertical", 2),
    Sketcher.Constraint("Horizontal", 3),
    Sketcher.Constraint("Equal", 4, 5),
    Sketcher.Constraint("Vertical", 4, 3, 5, 3),
    Sketcher.Constraint("Diameter", 4, Q("2.4 mm")),
    Sketcher.Constraint("DistanceY", 2, 2, 2, 1, Q("20 mm")),
    Sketcher.Constraint("DistanceX", 3, 2, 3, 1, Q("9.9 mm")),
    Sketcher.Constraint("DistanceY", 0, 2, -1, 1, Q("15 mm")),
    Sketcher.Constraint("DistanceX", 1, 1, 1, 2, Q("9.95 mm")),
    Sketcher.Constraint("DistanceX", -1, 1, 4, 3, Q("3.9 mm")),
    Sketcher.Constraint("DistanceX", -1, 1, 1, 2, Q("6.7 mm")),
    Sketcher.Constraint("DistanceY", 5, 3, 4, 3, Q("9.6 mm")),
    Sketcher.Constraint("DistanceY", 4, 3, -1, 1, Q("20.15 mm")),
])
pad5 = doc.addObject("PartDesign::Pad", "Pad004")
body.addObject(pad5)
pad5.Profile = sketch17
pad5.Length = 5
pad5.Reversed = True

doc.recompute()
